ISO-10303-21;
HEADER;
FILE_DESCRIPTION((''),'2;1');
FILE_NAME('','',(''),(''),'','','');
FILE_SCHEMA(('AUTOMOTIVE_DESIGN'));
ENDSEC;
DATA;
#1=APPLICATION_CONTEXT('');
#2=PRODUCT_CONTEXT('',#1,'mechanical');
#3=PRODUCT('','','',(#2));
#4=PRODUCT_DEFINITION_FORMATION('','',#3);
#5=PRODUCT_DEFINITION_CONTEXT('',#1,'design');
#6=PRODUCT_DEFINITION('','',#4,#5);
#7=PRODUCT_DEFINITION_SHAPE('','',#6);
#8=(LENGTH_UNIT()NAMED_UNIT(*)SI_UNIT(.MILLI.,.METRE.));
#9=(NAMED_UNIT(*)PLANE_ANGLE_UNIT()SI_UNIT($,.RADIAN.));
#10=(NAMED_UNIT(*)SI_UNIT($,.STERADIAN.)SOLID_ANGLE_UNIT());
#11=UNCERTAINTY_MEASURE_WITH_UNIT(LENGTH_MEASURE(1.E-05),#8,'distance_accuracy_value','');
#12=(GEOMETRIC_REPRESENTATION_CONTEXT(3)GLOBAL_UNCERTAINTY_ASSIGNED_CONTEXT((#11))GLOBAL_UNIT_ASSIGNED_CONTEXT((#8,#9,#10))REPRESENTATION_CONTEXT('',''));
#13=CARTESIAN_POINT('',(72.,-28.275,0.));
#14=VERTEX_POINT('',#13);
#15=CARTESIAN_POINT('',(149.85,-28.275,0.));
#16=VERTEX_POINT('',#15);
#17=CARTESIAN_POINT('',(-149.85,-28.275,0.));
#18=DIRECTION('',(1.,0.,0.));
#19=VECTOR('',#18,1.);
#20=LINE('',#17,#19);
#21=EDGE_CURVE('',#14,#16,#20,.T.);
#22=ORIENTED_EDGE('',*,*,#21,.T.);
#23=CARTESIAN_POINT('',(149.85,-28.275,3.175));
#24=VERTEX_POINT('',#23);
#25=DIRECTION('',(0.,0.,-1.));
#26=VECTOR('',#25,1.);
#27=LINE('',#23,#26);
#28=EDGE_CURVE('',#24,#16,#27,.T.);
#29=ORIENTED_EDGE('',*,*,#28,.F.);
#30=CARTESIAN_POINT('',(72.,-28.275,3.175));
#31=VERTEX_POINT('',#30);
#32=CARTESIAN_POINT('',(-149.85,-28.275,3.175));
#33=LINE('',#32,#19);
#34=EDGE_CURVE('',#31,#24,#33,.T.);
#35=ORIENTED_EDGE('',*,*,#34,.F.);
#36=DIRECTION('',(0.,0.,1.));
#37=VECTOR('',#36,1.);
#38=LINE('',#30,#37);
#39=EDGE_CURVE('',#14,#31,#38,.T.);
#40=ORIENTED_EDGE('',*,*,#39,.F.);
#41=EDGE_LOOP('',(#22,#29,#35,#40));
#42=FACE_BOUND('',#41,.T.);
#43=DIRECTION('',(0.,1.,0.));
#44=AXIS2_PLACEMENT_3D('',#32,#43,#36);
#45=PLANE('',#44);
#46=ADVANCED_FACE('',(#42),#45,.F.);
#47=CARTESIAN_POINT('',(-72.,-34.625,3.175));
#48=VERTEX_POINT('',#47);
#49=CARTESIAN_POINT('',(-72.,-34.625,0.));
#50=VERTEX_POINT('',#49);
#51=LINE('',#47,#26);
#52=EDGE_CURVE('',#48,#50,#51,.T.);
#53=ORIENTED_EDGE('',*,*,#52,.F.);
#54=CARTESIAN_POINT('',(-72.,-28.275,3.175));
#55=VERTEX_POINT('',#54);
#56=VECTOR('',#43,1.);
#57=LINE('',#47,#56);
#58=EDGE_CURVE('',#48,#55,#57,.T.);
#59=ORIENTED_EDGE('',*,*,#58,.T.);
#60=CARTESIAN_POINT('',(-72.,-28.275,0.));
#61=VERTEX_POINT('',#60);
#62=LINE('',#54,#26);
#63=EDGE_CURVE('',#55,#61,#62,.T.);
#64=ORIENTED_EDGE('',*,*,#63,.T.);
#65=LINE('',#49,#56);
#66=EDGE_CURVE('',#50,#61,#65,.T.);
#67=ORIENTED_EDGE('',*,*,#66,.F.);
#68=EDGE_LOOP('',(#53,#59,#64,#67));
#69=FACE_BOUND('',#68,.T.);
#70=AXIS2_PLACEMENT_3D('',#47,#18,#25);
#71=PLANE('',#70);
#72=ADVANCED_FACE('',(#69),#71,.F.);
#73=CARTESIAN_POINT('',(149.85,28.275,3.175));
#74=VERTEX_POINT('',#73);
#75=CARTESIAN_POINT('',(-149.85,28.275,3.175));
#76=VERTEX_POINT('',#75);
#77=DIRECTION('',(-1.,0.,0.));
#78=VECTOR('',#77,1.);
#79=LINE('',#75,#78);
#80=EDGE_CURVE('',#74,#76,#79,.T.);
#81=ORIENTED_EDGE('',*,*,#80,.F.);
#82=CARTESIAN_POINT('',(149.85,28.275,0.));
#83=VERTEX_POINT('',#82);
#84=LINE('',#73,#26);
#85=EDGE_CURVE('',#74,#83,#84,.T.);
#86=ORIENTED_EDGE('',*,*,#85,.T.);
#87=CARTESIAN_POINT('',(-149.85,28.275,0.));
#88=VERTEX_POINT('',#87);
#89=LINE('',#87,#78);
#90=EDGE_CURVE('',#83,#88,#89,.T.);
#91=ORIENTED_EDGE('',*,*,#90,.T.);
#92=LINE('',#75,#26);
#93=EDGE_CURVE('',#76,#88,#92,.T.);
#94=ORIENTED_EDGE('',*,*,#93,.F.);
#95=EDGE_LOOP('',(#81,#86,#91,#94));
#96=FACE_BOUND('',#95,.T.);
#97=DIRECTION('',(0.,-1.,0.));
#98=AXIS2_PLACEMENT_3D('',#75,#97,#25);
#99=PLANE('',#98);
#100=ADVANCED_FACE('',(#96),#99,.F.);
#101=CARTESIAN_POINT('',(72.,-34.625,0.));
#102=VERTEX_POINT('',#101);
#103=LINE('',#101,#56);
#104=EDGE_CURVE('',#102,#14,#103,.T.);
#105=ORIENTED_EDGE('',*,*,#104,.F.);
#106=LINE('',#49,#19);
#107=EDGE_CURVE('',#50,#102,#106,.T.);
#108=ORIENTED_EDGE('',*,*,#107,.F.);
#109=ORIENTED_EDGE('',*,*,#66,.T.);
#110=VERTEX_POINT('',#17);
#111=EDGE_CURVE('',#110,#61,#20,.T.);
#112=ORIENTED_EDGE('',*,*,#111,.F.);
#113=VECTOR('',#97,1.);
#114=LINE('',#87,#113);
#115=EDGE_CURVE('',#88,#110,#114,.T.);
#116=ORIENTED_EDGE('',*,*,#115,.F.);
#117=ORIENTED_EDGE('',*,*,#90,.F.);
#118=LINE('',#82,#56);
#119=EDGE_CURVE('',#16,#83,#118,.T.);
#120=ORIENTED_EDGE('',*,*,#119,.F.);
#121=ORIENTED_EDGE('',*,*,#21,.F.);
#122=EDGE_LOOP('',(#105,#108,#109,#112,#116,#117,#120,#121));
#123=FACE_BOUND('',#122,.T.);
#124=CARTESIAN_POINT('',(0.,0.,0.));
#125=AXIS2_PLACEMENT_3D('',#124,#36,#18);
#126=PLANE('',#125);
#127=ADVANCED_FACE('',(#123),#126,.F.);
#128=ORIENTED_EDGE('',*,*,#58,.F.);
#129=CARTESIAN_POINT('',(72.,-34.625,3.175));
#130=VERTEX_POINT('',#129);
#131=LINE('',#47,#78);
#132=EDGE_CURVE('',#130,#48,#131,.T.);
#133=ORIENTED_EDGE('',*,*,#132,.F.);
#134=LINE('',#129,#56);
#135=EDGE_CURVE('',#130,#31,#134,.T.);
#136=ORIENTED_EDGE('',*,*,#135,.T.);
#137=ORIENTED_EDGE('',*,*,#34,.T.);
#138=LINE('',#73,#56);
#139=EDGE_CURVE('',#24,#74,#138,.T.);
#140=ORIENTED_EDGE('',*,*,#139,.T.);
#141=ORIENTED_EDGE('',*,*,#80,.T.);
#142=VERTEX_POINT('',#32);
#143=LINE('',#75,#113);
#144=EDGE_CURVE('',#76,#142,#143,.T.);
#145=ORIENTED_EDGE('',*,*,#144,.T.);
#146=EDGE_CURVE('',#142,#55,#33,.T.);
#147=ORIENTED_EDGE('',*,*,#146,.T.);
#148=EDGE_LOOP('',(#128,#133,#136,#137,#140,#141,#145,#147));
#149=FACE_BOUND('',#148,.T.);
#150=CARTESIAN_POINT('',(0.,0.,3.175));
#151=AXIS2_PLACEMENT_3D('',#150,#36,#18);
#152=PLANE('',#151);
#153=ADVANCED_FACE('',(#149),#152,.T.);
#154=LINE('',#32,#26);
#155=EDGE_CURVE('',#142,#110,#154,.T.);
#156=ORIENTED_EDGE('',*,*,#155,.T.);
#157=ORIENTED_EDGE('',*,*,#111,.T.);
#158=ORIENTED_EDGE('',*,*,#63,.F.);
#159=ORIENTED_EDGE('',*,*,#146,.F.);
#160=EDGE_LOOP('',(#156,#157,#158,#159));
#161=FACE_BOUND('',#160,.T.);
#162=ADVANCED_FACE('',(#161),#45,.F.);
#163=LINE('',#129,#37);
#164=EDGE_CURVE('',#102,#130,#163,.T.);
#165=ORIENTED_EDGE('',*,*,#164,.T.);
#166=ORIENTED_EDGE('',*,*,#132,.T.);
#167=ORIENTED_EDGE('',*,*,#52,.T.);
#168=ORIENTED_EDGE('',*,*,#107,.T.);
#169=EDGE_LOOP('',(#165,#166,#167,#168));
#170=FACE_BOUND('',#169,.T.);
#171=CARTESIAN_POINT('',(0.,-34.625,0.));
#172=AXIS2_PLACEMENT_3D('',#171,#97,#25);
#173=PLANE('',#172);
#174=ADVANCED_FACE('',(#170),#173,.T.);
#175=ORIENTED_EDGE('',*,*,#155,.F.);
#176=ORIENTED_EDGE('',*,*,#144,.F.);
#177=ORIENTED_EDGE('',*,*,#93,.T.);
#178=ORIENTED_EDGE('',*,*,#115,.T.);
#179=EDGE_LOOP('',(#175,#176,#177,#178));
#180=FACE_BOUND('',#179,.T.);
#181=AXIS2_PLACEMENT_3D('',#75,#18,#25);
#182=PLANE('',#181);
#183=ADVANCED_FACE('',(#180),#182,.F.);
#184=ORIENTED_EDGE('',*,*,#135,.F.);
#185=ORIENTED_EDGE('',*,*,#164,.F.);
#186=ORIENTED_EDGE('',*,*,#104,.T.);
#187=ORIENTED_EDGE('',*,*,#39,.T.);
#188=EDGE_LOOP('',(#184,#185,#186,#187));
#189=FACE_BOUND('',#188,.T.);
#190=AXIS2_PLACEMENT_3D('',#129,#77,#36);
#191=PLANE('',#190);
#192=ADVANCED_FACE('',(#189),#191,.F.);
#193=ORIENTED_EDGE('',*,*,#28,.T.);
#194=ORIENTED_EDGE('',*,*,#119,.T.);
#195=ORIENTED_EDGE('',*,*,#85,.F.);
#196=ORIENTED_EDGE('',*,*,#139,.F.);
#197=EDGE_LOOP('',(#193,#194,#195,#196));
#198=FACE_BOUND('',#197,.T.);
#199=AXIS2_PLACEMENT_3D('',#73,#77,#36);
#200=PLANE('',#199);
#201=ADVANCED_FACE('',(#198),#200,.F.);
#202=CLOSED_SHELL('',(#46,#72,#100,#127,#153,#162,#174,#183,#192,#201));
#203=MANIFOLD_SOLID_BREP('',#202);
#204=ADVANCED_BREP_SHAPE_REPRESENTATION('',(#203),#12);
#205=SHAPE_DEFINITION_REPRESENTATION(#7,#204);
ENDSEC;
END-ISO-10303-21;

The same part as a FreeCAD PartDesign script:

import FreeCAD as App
import Part
import Sketcher

V = App.Vector
Q = App.Units.Quantity

doc = App.newDocument("Part")
params = doc.addObject("Spreadsheet::Sheet", "Params")
for row, (alias, value) in enumerate([
    ("sketch1_width", "299.7 mm"),
    ("sketch1_height", "56.55 mm"),
    ("pad1_length", "3.175 mm"),
    ("sketch2_width", "144 mm"),
    ("pad2_length", "6.35 mm"),
], start=1):
    params.set(f"A{row}", alias)
    params.set(f"B{row}", "=" + value)
    params.setAlias(f"B{row}", alias)

body = doc.addObject("PartDesign::Body", "Body")

# Sketch on XY plane
sketch1 = body.newObject("Sketcher::SketchObject", "Sketch")
sketch1.AttachmentSupport = (doc.getObject("XY_Plane"), [""])
sketch1.MapMode = "FlatFace"
sketch1.addGeometry(Part.LineSegment(V(-150, 28, 0), V(-150, -28, 0)), False)
sketch1.addGeometry(Part.LineSegment(V(-150, -28, 0), V(150, -28, 0)), False)
sketch1.addGeometry(Part.LineSegment(V(150, -28, 0), V(150, 28, 0)), False)
sketch1.addGeometry(Part.LineSegment(V(150, 28, 0), V(-150, 28, 0)), False)
sketch1.addConstraint(Sketcher.Constraint("Coincident", 0, 2, 1, 1))
sketch1.addConstraint(Sketcher.Constraint("Coincident", 1, 2, 2, 1))
sketch1.addConstraint(Sketcher.Constraint("Coincident", 2, 2, 3, 1))
sketch1.addConstraint(Sketcher.Constraint("Coincident", 3, 2, 0, 1))
sketch1.addConstraint(Sketcher.Constraint("Vertical", 0))
sketch1.addConstraint(Sketcher.Constraint("Horizontal", 1))
sketch1.addConstraint(Sketcher.Constraint("Vertical", 2))
sketch1.addConstraint(Sketcher.Constraint("Horizontal", 3))
sketch1.addConstraint(Sketcher.Constraint("Symmetric", 0, 2, 2, 2, -1, 1))
sketch1.addConstraint(Sketcher.Constraint("DistanceX", 1, 1, 1, 2, Q("299.7 mm")))
sketch1.addConstraint(Sketcher.Constraint("DistanceY", 0, 2, 0, 1, Q("56.55 mm")))
sketch1.setExpression("Constraints[9]", "Params.sketch1_width")
sketch1.setExpression("Constraints[10]", "Params.sketch1_height")
pad1 = body.newObject("PartDesign::Pad", "Pad")
pad1.Profile = sketch1
pad1.setExpression("Length", "Params.pad1_length")

# Sketch on XZ plane
sketch2 = body.newObject("Sketcher::SketchObject", "Sketch001")
sketch2.AttachmentSupport = (doc.getObject("XZ_Plane"), [""])
sketch2.MapMode = "FlatFace"
sketch2.AttachmentOffset = App.Placement(V(0, 0, 28.275), App.Rotation())
sketch2.addGeometry(Part.LineSegment(V(-72, 3.2, 0), V(-72, 0, 0)), False)
sketch2.addGeometry(Part.LineSegment(V(-72, 0, 0), V(72, 0, 0)), False)
sketch2.addGeometry(Part.LineSegment(V(72, 0, 0), V(72, 3.2, 0)), False)
sketch2.addGeometry(Part.LineSegment(V(72, 3.2, 0), V(-72, 3.2, 0)), False)
sketch2.addConstraint(Sketcher.Constraint("Coincident", 0, 2, 1, 1))
sketch2.addConstraint(Sketcher.Constraint("Coincident", 1, 2, 2, 1))
sketch2.addConstraint(Sketcher.Constraint("Coincident", 2, 2, 3, 1))
sketch2.addConstraint(Sketcher.Constraint("Coincident", 3, 2, 0, 1))
sketch2.addConstraint(Sketcher.Constraint("Vertical", 0))
sketch2.addConstraint(Sketcher.Constraint("Horizontal", 1))
sketch2.addConstraint(Sketcher.Constraint("Vertical", 2))
sketch2.addConstraint(Sketcher.Constraint("Horizontal", 3))
sketch2.addConstraint(Sketcher.Constraint("Symmetric", 0, 2, 1, 2, -1, 1))
sketch2.addConstraint(Sketcher.Constraint("DistanceX", 1, 1, 1, 2, Q("144 mm")))
sketch2.addConstraint(Sketcher.Constraint("DistanceY", 0, 2, 0, 1, Q("3.175 mm")))
sketch2.setExpression("Constraints[9]", "Params.sketch2_width")
pad2 = body.newObject("PartDesign::Pad", "Pad001")
pad2.Profile = sketch2
pad2.setExpression("Length", "Params.pad2_length")

doc.recompute()
